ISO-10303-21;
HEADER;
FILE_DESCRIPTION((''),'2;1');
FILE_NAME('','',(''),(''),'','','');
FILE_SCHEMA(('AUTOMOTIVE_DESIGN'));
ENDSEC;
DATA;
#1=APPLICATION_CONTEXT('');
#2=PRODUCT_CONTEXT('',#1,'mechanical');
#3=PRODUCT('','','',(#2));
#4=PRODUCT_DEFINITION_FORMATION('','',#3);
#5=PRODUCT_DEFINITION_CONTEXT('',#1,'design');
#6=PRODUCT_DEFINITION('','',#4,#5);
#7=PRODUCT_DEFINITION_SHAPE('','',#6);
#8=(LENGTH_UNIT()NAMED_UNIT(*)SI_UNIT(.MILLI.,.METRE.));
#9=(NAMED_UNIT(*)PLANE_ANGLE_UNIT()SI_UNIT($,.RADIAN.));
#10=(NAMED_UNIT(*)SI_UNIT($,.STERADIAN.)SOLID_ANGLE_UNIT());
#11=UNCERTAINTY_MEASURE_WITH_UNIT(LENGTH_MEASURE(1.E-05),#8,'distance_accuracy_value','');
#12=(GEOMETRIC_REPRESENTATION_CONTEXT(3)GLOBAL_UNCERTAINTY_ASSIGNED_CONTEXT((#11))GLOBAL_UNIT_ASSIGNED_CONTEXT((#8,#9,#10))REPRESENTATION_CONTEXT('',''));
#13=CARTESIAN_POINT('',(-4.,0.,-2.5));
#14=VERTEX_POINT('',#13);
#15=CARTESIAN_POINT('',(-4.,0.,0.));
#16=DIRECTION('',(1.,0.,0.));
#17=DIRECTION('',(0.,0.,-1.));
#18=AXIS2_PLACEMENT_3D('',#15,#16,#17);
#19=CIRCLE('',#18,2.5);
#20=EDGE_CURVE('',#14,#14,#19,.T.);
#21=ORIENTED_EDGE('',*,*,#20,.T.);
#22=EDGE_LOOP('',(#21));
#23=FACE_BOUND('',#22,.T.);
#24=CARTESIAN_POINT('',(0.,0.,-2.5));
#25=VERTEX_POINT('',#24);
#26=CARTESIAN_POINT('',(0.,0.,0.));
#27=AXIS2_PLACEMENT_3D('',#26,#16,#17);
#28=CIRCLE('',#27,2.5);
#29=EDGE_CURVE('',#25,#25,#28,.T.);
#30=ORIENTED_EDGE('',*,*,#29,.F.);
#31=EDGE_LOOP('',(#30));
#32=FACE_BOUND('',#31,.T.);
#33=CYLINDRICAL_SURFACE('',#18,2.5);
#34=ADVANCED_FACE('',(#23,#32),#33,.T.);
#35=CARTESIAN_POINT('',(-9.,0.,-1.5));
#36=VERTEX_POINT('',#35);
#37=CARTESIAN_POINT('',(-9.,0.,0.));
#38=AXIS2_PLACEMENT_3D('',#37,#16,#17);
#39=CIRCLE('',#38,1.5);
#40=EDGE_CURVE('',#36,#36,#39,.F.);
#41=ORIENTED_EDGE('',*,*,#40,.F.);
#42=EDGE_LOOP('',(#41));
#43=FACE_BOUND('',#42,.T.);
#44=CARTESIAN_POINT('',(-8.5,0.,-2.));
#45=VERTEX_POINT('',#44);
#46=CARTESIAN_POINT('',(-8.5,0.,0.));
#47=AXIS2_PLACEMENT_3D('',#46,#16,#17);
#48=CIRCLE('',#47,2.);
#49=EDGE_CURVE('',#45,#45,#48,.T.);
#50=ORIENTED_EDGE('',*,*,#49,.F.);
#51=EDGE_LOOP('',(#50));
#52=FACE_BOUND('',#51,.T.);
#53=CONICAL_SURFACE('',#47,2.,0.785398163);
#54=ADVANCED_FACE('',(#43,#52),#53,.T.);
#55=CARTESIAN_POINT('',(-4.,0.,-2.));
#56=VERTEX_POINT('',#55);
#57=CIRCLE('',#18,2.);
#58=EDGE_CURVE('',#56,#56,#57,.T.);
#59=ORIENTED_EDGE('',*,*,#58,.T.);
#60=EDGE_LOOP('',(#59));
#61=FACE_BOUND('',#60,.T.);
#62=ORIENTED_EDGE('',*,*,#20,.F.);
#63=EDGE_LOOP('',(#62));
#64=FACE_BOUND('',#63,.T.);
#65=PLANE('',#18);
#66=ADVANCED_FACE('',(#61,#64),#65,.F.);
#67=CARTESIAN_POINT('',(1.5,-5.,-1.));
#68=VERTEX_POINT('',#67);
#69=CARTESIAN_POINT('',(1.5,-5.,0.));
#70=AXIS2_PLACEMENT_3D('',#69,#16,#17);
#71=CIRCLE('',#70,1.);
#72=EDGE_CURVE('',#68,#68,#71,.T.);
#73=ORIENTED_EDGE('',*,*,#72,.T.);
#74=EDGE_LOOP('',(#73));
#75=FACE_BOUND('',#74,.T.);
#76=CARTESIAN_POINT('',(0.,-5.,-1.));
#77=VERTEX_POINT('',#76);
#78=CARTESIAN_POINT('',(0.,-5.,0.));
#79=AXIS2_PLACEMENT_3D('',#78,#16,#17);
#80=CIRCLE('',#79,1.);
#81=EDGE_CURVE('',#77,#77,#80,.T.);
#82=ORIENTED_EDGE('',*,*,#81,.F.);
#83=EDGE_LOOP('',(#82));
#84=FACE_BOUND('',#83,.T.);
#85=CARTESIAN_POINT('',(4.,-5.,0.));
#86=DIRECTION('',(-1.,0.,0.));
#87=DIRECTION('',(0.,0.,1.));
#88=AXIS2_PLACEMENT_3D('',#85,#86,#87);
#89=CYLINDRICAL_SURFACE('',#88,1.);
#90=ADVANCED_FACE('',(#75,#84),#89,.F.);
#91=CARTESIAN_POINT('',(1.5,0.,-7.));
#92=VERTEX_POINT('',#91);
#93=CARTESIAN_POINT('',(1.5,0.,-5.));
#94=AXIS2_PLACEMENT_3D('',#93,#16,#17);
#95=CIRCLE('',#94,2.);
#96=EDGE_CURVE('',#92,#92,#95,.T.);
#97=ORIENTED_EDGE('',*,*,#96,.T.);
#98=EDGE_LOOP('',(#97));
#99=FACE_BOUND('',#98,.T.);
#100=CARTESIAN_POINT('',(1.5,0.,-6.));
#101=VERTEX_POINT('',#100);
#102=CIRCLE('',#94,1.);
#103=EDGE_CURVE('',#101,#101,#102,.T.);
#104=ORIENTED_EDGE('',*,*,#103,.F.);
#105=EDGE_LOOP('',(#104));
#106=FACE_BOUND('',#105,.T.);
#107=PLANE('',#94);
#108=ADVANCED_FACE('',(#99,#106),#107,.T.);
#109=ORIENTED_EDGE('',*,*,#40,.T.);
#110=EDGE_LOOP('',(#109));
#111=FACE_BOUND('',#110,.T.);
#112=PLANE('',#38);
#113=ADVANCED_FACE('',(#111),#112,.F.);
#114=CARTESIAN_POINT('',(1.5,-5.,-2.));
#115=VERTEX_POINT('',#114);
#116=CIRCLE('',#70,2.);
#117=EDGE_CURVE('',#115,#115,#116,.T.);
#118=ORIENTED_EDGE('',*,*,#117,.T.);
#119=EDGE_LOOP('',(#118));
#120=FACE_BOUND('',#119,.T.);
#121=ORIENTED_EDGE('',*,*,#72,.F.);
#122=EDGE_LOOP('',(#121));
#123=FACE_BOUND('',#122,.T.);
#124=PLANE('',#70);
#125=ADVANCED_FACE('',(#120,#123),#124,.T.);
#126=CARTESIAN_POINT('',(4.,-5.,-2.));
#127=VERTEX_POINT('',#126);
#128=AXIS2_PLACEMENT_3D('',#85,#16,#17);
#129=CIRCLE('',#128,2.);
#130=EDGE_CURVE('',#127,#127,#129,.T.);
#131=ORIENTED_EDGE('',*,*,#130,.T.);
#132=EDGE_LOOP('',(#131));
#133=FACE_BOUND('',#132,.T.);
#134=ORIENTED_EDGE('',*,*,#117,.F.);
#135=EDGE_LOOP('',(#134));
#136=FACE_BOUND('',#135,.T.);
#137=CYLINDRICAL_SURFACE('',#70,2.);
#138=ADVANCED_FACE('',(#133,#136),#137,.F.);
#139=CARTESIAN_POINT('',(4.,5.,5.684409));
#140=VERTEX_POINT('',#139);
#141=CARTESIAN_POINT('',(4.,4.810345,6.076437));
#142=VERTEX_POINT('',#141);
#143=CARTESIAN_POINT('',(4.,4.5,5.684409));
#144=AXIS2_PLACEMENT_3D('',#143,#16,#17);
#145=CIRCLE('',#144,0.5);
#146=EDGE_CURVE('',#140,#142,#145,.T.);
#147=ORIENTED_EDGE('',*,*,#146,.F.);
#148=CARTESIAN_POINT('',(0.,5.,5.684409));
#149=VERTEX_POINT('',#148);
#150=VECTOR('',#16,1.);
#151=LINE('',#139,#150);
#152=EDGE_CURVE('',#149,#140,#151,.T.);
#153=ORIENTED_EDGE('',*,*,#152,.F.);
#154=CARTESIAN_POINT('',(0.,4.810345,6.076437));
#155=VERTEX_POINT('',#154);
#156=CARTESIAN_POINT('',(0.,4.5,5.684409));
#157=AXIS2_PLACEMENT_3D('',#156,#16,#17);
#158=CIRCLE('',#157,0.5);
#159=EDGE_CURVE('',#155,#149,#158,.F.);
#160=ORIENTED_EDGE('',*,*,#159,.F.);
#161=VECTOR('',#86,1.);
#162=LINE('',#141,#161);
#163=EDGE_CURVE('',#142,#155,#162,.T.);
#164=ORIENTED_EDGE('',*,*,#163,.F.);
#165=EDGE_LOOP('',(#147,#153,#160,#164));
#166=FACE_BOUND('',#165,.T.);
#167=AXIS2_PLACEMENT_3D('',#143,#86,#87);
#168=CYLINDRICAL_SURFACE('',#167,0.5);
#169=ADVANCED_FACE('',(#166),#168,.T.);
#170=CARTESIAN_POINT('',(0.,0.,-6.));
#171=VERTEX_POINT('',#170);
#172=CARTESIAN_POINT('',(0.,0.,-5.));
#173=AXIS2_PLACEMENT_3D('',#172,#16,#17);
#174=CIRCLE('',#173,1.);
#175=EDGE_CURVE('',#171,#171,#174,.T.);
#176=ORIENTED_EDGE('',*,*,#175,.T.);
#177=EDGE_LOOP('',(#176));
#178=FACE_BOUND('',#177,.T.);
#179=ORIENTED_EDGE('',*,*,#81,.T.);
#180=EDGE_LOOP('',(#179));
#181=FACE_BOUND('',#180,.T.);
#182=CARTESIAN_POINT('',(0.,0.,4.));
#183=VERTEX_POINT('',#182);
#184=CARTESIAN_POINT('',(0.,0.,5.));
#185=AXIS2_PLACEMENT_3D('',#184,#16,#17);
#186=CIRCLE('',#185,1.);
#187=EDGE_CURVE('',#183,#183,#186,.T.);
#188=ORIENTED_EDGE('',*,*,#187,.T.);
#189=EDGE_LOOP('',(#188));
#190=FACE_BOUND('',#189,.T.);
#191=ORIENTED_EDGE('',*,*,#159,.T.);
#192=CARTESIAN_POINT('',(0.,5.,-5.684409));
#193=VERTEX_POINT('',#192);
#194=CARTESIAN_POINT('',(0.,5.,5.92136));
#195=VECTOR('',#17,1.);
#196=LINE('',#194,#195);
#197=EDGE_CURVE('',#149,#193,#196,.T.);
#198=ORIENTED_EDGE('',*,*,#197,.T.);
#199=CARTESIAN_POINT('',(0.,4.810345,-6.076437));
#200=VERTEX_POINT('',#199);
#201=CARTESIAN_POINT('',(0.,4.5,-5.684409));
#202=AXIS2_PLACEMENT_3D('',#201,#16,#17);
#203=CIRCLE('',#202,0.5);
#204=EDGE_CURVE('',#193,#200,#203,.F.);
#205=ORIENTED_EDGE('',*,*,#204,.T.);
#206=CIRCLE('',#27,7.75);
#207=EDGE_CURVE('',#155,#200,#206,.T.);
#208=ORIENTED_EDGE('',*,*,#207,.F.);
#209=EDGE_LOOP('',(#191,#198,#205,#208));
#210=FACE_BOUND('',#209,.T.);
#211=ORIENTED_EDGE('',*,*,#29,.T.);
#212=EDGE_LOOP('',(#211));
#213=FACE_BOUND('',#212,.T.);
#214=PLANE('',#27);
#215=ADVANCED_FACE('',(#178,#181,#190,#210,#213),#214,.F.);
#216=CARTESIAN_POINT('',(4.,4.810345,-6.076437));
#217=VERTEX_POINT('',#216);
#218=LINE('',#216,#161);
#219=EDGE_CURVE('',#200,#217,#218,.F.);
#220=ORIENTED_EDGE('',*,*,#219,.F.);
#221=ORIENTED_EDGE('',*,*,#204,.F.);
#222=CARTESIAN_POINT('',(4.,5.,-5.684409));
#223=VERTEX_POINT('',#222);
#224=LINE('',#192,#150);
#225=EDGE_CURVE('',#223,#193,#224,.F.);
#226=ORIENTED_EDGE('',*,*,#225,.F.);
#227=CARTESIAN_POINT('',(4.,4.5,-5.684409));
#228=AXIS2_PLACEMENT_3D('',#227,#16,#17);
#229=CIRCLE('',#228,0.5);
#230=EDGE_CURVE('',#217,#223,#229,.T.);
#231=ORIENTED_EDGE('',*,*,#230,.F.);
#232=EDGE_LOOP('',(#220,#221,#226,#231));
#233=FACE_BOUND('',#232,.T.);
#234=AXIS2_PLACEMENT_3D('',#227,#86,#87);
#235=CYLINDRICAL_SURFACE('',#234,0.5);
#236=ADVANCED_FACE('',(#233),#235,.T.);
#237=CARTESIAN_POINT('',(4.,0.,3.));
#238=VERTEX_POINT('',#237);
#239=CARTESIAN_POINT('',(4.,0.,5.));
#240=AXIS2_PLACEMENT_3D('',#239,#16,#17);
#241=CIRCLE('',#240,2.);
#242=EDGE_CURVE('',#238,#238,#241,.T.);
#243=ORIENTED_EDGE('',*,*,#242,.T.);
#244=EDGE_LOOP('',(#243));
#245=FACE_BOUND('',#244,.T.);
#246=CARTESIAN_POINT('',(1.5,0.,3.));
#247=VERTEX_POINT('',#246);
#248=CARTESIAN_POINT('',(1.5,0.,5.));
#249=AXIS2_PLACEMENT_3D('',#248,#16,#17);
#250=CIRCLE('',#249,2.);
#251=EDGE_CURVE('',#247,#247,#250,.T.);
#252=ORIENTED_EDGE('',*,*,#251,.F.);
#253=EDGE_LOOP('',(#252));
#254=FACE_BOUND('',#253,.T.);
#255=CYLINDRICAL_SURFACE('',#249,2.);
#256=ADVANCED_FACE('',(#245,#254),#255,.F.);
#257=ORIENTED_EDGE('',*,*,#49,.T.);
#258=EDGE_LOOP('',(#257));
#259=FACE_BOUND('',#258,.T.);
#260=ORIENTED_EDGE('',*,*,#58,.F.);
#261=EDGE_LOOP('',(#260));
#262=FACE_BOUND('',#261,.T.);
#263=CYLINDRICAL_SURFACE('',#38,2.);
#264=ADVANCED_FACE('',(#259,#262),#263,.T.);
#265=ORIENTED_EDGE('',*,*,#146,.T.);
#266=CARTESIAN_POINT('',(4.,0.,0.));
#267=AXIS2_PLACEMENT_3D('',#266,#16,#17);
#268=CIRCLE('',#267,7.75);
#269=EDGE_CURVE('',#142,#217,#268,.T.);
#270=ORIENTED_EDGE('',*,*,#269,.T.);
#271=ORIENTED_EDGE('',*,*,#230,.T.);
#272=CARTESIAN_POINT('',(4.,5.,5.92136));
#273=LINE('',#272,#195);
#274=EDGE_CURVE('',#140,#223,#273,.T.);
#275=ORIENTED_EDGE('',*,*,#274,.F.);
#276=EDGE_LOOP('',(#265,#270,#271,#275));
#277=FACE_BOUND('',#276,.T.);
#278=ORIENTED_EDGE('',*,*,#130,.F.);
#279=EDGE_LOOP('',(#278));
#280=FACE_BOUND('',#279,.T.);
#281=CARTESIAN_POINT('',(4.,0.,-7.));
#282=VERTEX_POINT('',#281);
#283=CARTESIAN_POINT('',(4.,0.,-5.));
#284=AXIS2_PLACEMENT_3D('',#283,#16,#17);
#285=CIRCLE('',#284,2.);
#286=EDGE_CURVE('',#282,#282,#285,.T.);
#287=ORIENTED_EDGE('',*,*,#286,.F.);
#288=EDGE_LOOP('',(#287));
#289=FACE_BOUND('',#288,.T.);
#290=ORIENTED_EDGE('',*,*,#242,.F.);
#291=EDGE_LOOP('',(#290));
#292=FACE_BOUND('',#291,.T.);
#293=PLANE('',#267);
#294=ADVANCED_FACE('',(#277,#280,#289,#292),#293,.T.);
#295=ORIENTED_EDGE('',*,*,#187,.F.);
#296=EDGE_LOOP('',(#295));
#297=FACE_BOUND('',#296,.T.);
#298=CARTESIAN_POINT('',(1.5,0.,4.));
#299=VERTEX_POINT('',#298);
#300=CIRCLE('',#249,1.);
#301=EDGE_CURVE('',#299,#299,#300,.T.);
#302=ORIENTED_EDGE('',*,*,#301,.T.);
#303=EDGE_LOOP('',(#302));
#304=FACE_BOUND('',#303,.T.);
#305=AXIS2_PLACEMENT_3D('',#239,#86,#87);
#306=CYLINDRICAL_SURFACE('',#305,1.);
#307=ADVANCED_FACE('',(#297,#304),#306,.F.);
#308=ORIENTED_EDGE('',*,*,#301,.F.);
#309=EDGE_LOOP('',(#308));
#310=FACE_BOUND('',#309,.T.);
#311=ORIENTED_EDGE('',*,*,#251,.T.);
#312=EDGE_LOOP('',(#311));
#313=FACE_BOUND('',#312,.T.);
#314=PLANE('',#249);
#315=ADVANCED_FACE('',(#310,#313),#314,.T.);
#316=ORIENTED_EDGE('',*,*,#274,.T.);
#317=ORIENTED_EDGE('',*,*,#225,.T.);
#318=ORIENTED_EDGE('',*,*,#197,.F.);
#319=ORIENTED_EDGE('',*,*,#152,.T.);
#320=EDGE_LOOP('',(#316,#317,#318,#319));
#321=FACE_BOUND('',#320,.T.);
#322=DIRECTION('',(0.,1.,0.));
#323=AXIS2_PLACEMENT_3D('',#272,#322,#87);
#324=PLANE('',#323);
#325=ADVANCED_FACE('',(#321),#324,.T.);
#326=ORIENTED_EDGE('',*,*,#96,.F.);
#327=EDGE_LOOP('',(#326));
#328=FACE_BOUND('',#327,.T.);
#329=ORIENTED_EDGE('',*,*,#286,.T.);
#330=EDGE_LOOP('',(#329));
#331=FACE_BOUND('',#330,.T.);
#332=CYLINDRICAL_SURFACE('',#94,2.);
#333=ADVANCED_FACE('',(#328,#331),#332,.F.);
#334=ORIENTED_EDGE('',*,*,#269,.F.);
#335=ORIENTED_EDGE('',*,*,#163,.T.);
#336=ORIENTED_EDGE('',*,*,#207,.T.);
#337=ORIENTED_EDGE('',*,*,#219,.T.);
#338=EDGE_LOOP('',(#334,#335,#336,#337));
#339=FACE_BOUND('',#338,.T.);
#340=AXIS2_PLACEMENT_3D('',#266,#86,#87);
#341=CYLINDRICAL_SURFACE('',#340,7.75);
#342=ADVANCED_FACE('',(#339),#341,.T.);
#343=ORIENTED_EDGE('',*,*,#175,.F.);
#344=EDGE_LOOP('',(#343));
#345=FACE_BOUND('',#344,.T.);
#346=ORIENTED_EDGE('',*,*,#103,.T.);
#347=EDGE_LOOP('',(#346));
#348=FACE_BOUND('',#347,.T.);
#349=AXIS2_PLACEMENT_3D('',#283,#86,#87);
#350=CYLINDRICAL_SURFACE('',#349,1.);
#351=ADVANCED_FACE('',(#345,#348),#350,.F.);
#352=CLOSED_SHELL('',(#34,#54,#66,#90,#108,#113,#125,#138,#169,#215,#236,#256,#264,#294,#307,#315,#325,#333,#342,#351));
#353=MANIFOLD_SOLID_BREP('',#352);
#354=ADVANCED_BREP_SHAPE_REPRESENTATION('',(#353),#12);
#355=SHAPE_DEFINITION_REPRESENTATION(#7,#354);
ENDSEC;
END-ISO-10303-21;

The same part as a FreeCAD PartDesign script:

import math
import FreeCAD as App
import Part
import Sketcher

V = App.Vector


def edges_at(feature, points):
    """Names of the edges that pass closest to the given points."""
    edges = feature.Shape.Edges
    near = lambda p: min(range(len(edges)), key=lambda i: edges[i].distToShape(Part.Vertex(*p))[0])
    return sorted({f"Edge{near(p) + 1}" for p in points})

doc = App.newDocument("Part")
body = doc.addObject("PartDesign::Body", "Body")

# Sketch on YZ plane
sketch1 = body.newObject("Sketcher::SketchObject", "Sketch")
sketch1.AttachmentSupport = (doc.getObject("YZ_Plane"), [""])
sketch1.MapMode = "FlatFace"
sketch1.addGeometry([
    Part.LineSegment(V(5, -5.92136, 0), V(5, 5.92136, 0)),
    Part.ArcOfCircle(Part.Circle(V(0, 0, 0), V(0, 0, 1), 7.75), math.radians(49.82223), math.radians(310.17777)),
], False)
sketch1.addConstraint([
    Sketcher.Constraint("Coincident", 0, 1, 1, 2),
    Sketcher.Constraint("Coincident", 1, 1, 0, 2),
    Sketcher.Constraint("Vertical", 0),
    Sketcher.Constraint("Coincident", 1, 3, -1, 1),
    Sketcher.Constraint("Radius", 1, 7.75),
    Sketcher.Constraint("DistanceX", -1, 1, 0, 1, 5.0),
])
pad1 = body.newObject("PartDesign::Pad", "Pad")
pad1.Profile = sketch1
pad1.Length = 4

# Sketch on YZ plane
sketch2 = body.newObject("Sketcher::SketchObject", "Sketch001")
sketch2.AttachmentSupport = (doc.getObject("YZ_Plane"), [""])
sketch2.MapMode = "FlatFace"
sketch2.addGeometry([
    Part.Circle(V(0, 5, 0), V(0, 0, 1), 1),
    Part.Circle(V(0, -5, 0), V(0, 0, 1), 1),
    Part.Circle(V(-5, 0, 0), V(0, 0, 1), 1),
], False)
sketch2.addConstraint([
    Sketcher.Constraint("Equal", 0, 1),
    Sketcher.Constraint("Equal", 1, 2),
    Sketcher.Constraint("Symmetric", 0, 3, 1, 3, -1, 1),
    Sketcher.Constraint("PointOnObject", 0, 3, -2),
    Sketcher.Constraint("PointOnObject", 2, 3, -1),
    Sketcher.Constraint("Diameter", 0, 2.0),
    Sketcher.Constraint("DistanceY", -1, 1, 0, 3, 5.0),
    Sketcher.Constraint("DistanceX", 2, 3, -1, 1, 5.0),
])
pocket1 = body.newObject("PartDesign::Pocket", "Pocket")
pocket1.Profile = sketch2
pocket1.Length = 4
pocket1.Reversed = True

# Sketch on YZ plane
sketch3 = body.newObject("Sketcher::SketchObject", "Sketch002")
sketch3.AttachmentSupport = (doc.getObject("YZ_Plane"), [""])
sketch3.MapMode = "FlatFace"
sketch3.addGeometry(Part.Circle(V(0, 0, 0), V(0, 0, 1), 2.5), False)
sketch3.addConstraint([
    Sketcher.Constraint("Coincident", 0, 3, -1, 1),
    Sketcher.Constraint("Diameter", 0, 5.0),
])
pad2 = body.newObject("PartDesign::Pad", "Pad001")
pad2.Profile = sketch3
pad2.Length = 4
pad2.Reversed = True

# Sketch on YZ plane
sketch4 = body.newObject("Sketcher::SketchObject", "Sketch003")
sketch4.AttachmentSupport = (doc.getObject("YZ_Plane"), [""])
sketch4.MapMode = "FlatFace"
sketch4.addGeometry(Part.Circle(V(0, 0, 0), V(0, 0, 1), 2), False)
sketch4.addConstraint([
    Sketcher.Constraint("Coincident", 0, 3, -1, 1),
    Sketcher.Constraint("Diameter", 0, 4.0),
])
pad3 = body.newObject("PartDesign::Pad", "Pad002")
pad3.Profile = sketch4
pad3.Length = 9
pad3.Reversed = True
doc.recompute()

chamfer = body.newObject("PartDesign::Chamfer", "Chamfer")
chamfer.Base = (pad3, edges_at(pad3, [(-9, 0, 2)]))
chamfer.Size = 0.5
doc.recompute()

fillet = body.newObject("PartDesign::Fillet", "Fillet")
fillet.Base = (chamfer, edges_at(chamfer, [(2, 5, 5.921), (2, 5, -5.921)]))
fillet.Radius = 0.5

# Sketch on YZ plane
sketch5 = body.newObject("Sketcher::SketchObject", "Sketch004")
sketch5.AttachmentSupport = (doc.getObject("YZ_Plane"), [""])
sketch5.MapMode = "FlatFace"
sketch5.AttachmentOffset = App.Placement(V(0, 0, 4), App.Rotation())
sketch5.addGeometry([
    Part.Circle(V(0, 5, 0), V(0, 0, 1), 2),
    Part.Circle(V(0, -5, 0), V(0, 0, 1), 2),
    Part.Circle(V(-5, 0, 0), V(0, 0, 1), 2),
], False)
sketch5.addConstraint([
    Sketcher.Constraint("Equal", 0, 1),
    Sketcher.Constraint("Equal", 1, 2),
    Sketcher.Constraint("Symmetric", 0, 3, 1, 3, -1, 1),
    Sketcher.Constraint("PointOnObject", 0, 3, -2),
    Sketcher.Constraint("PointOnObject", 2, 3, -1),
    Sketcher.Constraint("Diameter", 0, 4.0),
    Sketcher.Constraint("DistanceY", -1, 1, 0, 3, 5.0),
    Sketcher.Constraint("DistanceX", 2, 3, -1, 1, 5.0),
])
pocket2 = body.newObject("PartDesign::Pocket", "Pocket001")
pocket2.Profile = sketch5
pocket2.Length = 2.5

doc.recompute()
